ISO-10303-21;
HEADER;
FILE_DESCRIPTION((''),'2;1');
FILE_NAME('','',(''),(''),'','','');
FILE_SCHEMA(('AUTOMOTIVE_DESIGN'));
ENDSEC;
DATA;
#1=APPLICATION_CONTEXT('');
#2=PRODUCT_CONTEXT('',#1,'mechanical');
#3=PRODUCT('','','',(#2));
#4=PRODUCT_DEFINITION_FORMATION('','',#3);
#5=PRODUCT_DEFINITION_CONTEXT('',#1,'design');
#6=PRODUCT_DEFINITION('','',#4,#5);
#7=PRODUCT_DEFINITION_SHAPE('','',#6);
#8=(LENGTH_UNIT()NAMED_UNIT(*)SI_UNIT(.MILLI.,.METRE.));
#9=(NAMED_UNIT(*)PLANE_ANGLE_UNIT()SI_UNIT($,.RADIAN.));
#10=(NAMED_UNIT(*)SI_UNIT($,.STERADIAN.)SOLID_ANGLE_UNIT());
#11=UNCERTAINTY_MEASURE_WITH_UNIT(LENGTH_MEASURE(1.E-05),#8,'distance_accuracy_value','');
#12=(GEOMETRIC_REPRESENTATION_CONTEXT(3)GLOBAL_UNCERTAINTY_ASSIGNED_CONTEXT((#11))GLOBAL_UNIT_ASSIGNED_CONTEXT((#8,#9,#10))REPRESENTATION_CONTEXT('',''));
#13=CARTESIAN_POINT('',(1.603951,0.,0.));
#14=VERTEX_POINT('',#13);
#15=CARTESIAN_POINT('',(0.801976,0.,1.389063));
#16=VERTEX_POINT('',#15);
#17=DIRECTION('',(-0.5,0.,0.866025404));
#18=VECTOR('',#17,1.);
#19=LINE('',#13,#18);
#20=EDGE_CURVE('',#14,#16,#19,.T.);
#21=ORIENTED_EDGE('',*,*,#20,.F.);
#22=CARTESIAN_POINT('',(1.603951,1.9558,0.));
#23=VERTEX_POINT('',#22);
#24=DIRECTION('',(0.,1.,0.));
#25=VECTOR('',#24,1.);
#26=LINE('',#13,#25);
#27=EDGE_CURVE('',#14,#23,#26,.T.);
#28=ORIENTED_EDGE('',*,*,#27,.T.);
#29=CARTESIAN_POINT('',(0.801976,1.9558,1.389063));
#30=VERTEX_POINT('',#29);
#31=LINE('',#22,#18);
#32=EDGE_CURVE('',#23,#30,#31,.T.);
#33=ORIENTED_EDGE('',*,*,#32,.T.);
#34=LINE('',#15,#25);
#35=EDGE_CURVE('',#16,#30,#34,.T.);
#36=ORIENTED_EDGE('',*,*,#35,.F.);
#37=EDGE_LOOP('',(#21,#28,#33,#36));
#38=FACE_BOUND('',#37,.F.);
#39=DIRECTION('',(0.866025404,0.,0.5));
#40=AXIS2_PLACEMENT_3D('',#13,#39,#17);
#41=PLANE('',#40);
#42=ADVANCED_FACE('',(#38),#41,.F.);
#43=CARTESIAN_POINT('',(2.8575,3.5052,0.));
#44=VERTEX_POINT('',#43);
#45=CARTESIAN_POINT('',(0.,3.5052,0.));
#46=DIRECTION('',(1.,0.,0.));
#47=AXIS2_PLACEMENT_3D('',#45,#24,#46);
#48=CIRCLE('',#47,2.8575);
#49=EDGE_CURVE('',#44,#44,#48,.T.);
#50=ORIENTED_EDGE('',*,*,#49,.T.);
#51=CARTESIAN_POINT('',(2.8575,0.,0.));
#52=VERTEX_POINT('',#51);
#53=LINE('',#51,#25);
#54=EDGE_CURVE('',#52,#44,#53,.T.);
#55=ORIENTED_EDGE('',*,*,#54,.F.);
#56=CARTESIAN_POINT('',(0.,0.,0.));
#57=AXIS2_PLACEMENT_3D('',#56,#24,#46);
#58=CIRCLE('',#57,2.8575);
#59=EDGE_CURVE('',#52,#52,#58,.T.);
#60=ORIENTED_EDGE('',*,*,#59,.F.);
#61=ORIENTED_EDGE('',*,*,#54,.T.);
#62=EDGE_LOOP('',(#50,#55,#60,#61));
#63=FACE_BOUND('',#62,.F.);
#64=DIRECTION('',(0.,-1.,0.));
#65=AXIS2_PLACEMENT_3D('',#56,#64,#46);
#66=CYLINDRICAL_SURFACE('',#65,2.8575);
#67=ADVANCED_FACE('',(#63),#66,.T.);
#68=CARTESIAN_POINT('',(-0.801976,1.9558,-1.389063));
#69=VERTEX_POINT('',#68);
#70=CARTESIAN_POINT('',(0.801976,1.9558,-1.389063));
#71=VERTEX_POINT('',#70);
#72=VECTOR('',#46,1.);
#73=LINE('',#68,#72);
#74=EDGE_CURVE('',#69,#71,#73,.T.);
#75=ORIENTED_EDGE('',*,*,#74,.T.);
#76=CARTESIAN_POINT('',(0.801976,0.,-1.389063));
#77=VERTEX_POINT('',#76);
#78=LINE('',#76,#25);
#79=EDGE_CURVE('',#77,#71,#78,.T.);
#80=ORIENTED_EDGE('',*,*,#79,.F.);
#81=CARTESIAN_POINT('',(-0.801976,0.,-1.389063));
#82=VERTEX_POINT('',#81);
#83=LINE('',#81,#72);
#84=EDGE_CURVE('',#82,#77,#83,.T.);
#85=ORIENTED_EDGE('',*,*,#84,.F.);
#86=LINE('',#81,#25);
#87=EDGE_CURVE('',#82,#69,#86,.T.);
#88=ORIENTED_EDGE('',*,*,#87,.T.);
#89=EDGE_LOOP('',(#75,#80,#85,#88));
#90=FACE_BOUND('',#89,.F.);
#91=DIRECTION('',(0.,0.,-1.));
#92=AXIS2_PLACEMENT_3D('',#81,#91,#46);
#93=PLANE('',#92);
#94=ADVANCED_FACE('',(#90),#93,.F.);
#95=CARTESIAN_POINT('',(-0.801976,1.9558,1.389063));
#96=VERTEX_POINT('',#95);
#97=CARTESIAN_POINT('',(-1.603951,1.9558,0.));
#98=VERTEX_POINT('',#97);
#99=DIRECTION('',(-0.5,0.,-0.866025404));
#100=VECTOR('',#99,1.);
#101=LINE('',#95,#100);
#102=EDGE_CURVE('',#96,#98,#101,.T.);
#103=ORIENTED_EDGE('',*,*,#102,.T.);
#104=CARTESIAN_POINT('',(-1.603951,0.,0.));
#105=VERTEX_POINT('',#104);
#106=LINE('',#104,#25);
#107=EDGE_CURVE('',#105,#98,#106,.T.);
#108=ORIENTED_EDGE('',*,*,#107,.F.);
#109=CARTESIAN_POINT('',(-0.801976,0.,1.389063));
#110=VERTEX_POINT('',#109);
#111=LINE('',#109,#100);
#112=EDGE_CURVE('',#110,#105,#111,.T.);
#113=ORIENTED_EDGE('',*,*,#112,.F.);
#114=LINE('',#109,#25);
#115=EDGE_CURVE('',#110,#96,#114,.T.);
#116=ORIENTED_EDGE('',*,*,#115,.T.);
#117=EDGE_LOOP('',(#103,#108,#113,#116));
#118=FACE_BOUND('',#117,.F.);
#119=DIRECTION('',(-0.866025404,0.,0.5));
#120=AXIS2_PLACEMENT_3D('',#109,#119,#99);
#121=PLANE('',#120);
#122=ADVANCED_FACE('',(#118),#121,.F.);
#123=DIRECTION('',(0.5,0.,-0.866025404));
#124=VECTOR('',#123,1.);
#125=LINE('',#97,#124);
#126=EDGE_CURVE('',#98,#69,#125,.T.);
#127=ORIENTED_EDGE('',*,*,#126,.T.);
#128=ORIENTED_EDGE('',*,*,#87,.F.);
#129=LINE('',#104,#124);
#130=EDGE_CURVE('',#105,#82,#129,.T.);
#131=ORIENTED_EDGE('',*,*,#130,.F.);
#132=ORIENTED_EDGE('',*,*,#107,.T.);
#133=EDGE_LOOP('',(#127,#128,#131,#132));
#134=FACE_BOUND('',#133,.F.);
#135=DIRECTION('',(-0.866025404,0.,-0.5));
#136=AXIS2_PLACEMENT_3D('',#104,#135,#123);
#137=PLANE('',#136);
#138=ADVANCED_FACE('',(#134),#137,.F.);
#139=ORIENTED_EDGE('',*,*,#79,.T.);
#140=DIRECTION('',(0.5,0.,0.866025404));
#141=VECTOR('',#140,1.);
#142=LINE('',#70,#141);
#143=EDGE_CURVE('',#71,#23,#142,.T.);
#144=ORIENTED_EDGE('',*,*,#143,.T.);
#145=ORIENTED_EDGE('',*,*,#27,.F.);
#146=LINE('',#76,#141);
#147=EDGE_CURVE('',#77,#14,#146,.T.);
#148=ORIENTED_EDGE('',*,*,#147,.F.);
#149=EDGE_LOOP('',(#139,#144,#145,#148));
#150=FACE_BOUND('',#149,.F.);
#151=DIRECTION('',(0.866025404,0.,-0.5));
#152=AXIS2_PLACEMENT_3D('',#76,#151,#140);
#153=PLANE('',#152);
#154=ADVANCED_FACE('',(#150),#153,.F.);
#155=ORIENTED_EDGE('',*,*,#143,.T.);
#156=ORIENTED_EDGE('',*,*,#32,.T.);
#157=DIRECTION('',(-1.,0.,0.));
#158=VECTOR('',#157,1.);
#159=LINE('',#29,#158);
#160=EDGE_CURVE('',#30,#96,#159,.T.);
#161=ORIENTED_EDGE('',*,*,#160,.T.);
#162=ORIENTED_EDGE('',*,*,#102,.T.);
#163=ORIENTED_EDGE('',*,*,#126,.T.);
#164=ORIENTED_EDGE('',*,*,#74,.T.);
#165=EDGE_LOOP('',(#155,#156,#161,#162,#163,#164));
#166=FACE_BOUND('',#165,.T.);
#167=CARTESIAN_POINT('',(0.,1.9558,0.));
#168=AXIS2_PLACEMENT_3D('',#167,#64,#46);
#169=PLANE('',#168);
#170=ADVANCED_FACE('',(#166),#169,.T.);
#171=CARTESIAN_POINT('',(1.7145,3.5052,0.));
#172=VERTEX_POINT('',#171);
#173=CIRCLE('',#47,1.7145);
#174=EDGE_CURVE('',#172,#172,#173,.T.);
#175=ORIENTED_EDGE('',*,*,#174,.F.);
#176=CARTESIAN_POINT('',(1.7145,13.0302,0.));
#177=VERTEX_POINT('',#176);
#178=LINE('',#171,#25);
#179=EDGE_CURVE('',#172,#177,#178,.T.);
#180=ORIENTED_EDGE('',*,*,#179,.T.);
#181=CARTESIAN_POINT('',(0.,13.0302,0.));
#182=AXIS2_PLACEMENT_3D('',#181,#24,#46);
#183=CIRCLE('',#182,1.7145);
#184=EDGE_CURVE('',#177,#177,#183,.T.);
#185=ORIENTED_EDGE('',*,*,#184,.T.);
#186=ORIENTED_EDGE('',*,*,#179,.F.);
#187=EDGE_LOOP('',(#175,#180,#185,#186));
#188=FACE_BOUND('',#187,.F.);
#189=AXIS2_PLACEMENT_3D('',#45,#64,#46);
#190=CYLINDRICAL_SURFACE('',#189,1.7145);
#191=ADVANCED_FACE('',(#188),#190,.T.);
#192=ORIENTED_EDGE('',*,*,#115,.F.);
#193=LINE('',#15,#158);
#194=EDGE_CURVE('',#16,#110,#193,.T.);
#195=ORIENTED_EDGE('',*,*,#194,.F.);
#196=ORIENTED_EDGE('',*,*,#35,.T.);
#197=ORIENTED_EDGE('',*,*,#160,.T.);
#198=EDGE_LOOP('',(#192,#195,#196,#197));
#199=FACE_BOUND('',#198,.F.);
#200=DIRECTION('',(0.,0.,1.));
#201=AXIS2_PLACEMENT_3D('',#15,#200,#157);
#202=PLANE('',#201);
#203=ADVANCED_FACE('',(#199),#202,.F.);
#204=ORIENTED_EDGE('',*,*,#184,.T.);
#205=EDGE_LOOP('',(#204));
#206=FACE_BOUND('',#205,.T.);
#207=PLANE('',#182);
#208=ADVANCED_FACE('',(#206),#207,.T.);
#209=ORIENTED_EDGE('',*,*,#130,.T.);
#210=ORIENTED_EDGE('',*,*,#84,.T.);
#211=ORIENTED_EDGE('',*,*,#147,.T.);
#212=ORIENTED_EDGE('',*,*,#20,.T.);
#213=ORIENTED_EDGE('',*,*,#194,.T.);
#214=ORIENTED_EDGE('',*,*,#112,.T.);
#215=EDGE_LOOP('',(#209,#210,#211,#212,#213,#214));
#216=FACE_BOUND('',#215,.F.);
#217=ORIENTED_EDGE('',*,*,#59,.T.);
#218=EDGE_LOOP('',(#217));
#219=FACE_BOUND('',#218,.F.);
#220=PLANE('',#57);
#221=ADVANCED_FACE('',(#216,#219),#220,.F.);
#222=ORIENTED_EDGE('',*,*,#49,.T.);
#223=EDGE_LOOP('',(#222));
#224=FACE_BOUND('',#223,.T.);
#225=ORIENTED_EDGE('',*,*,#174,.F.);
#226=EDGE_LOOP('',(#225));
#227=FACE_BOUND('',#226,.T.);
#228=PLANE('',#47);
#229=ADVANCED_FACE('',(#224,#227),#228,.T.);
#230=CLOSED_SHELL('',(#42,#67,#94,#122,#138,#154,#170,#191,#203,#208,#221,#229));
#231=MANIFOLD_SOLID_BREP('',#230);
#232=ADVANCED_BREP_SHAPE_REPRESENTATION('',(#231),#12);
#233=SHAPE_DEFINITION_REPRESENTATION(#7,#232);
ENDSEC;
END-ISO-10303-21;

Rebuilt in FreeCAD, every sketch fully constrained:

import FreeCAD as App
import Part
import Sketcher

V = App.Vector
Q = App.Units.Quantity

doc = App.newDocument("Part")
params = doc.addObject("Spreadsheet::Sheet", "Params")
for row, (alias, value) in enumerate([
    ("sketch1_diameter", "0.225 in"),
    ("pad1_length", "0.138 in"),
    ("pocket1_length", "0.077 in"),
    ("sketch3_diameter", "0.135 in"),
    ("pad2_length", "0.375 in"),
], start=1):
    params.set(f"A{row}", alias)
    params.set(f"B{row}", "=" + value)
    params.setAlias(f"B{row}", alias)

body = doc.addObject("PartDesign::Body", "Body")

# Sketch on XZ plane
sketch1 = body.newObject("Sketcher::SketchObject", "Sketch")
sketch1.AttachmentSupport = (doc.getObject("XZ_Plane"), [""])
sketch1.MapMode = "FlatFace"
sketch1.addGeometry(Part.Circle(V(0, 0, 0), V(0, 0, 1), 2.9), False)
sketch1.addConstraint([
    Sketcher.Constraint("Coincident", 0, 3, -1, 1),
    Sketcher.Constraint("Diameter", 0, Q("0.225 in")),
])
sketch1.setExpression("Constraints[1]", "Params.sketch1_diameter")
pad1 = body.newObject("PartDesign::Pad", "Pad")
pad1.Profile = sketch1
pad1.setExpression("Length", "Params.pad1_length")
pad1.Reversed = True

# Sketch on XZ plane
sketch2 = body.newObject("Sketcher::SketchObject", "Sketch001")
sketch2.AttachmentSupport = (doc.getObject("XZ_Plane"), [""])
sketch2.MapMode = "FlatFace"
sketch2.addGeometry([
    Part.LineSegment(V(1.6, 0, 0), V(0.8, 1.4, 0)),  # 0
    Part.LineSegment(V(0.8, 1.4, 0), V(-0.8, 1.4, 0)),  # 1
    Part.LineSegment(V(-0.8, 1.4, 0), V(-1.6, 0, 0)),  # 2
    Part.LineSegment(V(-1.6, 0, 0), V(-0.8, -1.4, 0)),  # 3
    Part.LineSegment(V(-0.8, -1.4, 0), V(0.8, -1.4, 0)),  # 4
    Part.LineSegment(V(0.8, -1.4, 0), V(1.6, 0, 0)),  # 5
], False)
sketch2.addConstraint([
    Sketcher.Constraint("Coincident", 0, 2, 1, 1),
    Sketcher.Constraint("Coincident", 1, 2, 2, 1),
    Sketcher.Constraint("Coincident", 2, 2, 3, 1),
    Sketcher.Constraint("Coincident", 3, 2, 4, 1),
    Sketcher.Constraint("Coincident", 4, 2, 5, 1),
    Sketcher.Constraint("Coincident", 5, 2, 0, 1),
    Sketcher.Constraint("Horizontal", 1),
    Sketcher.Constraint("Horizontal", 4),
    Sketcher.Constraint("Symmetric", 0, 2, 3, 2, -1, 1),
    Sketcher.Constraint("Symmetric", 2, 2, 5, 2, -1, 1),
    Sketcher.Constraint("PointOnObject", 2, 2, -1),
    Sketcher.Constraint("Parallel", 2, 5),
    Sketcher.Constraint("Vertical", 1, 2, 3, 2),
    Sketcher.Constraint("Angle", 0, Q("120 deg")),
    Sketcher.Constraint("DistanceY", 3, 2, 1, 2, Q("0.109375 in")),
    Sketcher.Constraint("DistanceX", 1, 2, 1, 1, Q("1.603951 mm")),
])
pocket1 = body.newObject("PartDesign::Pocket", "Pocket")
pocket1.Profile = sketch2
pocket1.setExpression("Length", "Params.pocket1_length")

# Sketch on XZ plane
sketch3 = body.newObject("Sketcher::SketchObject", "Sketch002")
sketch3.AttachmentSupport = (doc.getObject("XZ_Plane"), [""])
sketch3.MapMode = "FlatFace"
sketch3.AttachmentOffset = App.Placement(V(0, 0, -0.138 * 25.4), App.Rotation())
sketch3.addGeometry(Part.Circle(V(0, 0, 0), V(0, 0, 1), 1.7), False)
sketch3.addConstraint([
    Sketcher.Constraint("Coincident", 0, 3, -1, 1),
    Sketcher.Constraint("Diameter", 0, Q("0.135 in")),
])
sketch3.setExpression("Constraints[1]", "Params.sketch3_diameter")
pad2 = body.newObject("PartDesign::Pad", "Pad001")
pad2.Profile = sketch3
pad2.setExpression("Length", "Params.pad2_length")
pad2.Reversed = True

doc.recompute()
